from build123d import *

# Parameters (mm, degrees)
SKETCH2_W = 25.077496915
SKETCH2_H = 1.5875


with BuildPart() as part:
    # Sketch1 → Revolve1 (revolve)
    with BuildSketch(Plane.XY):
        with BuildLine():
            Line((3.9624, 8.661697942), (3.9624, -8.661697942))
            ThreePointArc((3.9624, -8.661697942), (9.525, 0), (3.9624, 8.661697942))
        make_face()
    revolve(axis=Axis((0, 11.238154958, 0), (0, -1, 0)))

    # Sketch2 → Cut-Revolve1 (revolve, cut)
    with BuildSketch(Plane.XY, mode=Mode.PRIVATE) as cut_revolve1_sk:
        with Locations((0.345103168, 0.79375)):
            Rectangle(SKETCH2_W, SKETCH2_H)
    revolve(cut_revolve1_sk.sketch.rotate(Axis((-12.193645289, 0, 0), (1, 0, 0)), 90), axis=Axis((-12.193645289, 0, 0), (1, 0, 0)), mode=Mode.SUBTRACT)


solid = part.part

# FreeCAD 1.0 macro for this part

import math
import FreeCAD as App
import Part
import Sketcher
from FreeCAD import Vector
Q = App.Units.Quantity


def add_polygon(sketch, points):
    """Adds a closed chain of lines whose ends are joined by coincident constraints."""
    first, n = sketch.GeometryCount, len(points)
    for a, b in zip(points, points[1:] + points[:1]):
        sketch.addGeometry(Part.LineSegment(App.Vector(*a, 0), App.Vector(*b, 0)), False)
    for i in range(n):
        sketch.addConstraint(Sketcher.Constraint("Coincident", first + i, 2, first + (i + 1) % n, 1))

doc = App.newDocument("Part")
body = doc.addObject("PartDesign::Body", "Body")

sketch1 = body.newObject("Sketcher::SketchObject", "Sketch")
sketch1.AttachmentSupport = (doc.getObject("XY_Plane"), [""])
sketch1.MapMode = "FlatFace"
sketch1.addGeometry([
    Part.LineSegment(Vector(3.9624, 8.661698, 0), Vector(3.9624, -8.661698, 0)),
    Part.ArcOfCircle(Part.Circle(Vector(0, 0, 0), Vector(0, 0, 1), 9.525), math.radians(-65.417693), math.radians(65.417693)),
], False)
sketch1.addConstraint([
    Sketcher.Constraint("Coincident", 0, 1, 1, 2),
    Sketcher.Constraint("Coincident", 1, 1, 0, 2),
    Sketcher.Constraint("Vertical", 0),
    Sketcher.Constraint("Coincident", 1, 3, -1, 1),
    Sketcher.Constraint("Radius", 1, Q("0.375 in")),
    Sketcher.Constraint("DistanceX", -1, 1, 0, 1, Q("0.156 in")),
])
revolution = body.newObject("PartDesign::Revolution", "Revolution")
revolution.Profile = sketch1
revolution.ReferenceAxis = (sketch1, ["V_Axis"])
revolution.Angle = 360

sketch2 = body.newObject("Sketcher::SketchObject", "Sketch001")
sketch2.AttachmentSupport = (doc.getObject("XY_Plane"), [""])
sketch2.MapMode = "FlatFace"
add_polygon(sketch2, [(-12.193645, 1.5875), (-12.193645, 0), (12.883852, 0), (12.883852, 1.5875)])
sketch2.addConstraint([
    Sketcher.Constraint("Vertical", 0),
    Sketcher.Constraint("Horizontal", 1),
    Sketcher.Constraint("Vertical", 2),
    Sketcher.Constraint("Horizontal", 3),
    Sketcher.Constraint("PointOnObject", 0, 2, -1),
    Sketcher.Constraint("DistanceY", 0, 2, 0, 1, Q("0.0625 in")),
    Sketcher.Constraint("DistanceX", 1, 1, 1, 2, Q("25.077497 mm")),
    Sketcher.Constraint("DistanceX", -1, 1, 1, 2, Q("12.883852 mm")),
])
groove = body.newObject("PartDesign::Groove", "Groove")
groove.Profile = sketch2
groove.ReferenceAxis = (sketch2, ["H_Axis"])
groove.Angle = 360

doc.recompute()
